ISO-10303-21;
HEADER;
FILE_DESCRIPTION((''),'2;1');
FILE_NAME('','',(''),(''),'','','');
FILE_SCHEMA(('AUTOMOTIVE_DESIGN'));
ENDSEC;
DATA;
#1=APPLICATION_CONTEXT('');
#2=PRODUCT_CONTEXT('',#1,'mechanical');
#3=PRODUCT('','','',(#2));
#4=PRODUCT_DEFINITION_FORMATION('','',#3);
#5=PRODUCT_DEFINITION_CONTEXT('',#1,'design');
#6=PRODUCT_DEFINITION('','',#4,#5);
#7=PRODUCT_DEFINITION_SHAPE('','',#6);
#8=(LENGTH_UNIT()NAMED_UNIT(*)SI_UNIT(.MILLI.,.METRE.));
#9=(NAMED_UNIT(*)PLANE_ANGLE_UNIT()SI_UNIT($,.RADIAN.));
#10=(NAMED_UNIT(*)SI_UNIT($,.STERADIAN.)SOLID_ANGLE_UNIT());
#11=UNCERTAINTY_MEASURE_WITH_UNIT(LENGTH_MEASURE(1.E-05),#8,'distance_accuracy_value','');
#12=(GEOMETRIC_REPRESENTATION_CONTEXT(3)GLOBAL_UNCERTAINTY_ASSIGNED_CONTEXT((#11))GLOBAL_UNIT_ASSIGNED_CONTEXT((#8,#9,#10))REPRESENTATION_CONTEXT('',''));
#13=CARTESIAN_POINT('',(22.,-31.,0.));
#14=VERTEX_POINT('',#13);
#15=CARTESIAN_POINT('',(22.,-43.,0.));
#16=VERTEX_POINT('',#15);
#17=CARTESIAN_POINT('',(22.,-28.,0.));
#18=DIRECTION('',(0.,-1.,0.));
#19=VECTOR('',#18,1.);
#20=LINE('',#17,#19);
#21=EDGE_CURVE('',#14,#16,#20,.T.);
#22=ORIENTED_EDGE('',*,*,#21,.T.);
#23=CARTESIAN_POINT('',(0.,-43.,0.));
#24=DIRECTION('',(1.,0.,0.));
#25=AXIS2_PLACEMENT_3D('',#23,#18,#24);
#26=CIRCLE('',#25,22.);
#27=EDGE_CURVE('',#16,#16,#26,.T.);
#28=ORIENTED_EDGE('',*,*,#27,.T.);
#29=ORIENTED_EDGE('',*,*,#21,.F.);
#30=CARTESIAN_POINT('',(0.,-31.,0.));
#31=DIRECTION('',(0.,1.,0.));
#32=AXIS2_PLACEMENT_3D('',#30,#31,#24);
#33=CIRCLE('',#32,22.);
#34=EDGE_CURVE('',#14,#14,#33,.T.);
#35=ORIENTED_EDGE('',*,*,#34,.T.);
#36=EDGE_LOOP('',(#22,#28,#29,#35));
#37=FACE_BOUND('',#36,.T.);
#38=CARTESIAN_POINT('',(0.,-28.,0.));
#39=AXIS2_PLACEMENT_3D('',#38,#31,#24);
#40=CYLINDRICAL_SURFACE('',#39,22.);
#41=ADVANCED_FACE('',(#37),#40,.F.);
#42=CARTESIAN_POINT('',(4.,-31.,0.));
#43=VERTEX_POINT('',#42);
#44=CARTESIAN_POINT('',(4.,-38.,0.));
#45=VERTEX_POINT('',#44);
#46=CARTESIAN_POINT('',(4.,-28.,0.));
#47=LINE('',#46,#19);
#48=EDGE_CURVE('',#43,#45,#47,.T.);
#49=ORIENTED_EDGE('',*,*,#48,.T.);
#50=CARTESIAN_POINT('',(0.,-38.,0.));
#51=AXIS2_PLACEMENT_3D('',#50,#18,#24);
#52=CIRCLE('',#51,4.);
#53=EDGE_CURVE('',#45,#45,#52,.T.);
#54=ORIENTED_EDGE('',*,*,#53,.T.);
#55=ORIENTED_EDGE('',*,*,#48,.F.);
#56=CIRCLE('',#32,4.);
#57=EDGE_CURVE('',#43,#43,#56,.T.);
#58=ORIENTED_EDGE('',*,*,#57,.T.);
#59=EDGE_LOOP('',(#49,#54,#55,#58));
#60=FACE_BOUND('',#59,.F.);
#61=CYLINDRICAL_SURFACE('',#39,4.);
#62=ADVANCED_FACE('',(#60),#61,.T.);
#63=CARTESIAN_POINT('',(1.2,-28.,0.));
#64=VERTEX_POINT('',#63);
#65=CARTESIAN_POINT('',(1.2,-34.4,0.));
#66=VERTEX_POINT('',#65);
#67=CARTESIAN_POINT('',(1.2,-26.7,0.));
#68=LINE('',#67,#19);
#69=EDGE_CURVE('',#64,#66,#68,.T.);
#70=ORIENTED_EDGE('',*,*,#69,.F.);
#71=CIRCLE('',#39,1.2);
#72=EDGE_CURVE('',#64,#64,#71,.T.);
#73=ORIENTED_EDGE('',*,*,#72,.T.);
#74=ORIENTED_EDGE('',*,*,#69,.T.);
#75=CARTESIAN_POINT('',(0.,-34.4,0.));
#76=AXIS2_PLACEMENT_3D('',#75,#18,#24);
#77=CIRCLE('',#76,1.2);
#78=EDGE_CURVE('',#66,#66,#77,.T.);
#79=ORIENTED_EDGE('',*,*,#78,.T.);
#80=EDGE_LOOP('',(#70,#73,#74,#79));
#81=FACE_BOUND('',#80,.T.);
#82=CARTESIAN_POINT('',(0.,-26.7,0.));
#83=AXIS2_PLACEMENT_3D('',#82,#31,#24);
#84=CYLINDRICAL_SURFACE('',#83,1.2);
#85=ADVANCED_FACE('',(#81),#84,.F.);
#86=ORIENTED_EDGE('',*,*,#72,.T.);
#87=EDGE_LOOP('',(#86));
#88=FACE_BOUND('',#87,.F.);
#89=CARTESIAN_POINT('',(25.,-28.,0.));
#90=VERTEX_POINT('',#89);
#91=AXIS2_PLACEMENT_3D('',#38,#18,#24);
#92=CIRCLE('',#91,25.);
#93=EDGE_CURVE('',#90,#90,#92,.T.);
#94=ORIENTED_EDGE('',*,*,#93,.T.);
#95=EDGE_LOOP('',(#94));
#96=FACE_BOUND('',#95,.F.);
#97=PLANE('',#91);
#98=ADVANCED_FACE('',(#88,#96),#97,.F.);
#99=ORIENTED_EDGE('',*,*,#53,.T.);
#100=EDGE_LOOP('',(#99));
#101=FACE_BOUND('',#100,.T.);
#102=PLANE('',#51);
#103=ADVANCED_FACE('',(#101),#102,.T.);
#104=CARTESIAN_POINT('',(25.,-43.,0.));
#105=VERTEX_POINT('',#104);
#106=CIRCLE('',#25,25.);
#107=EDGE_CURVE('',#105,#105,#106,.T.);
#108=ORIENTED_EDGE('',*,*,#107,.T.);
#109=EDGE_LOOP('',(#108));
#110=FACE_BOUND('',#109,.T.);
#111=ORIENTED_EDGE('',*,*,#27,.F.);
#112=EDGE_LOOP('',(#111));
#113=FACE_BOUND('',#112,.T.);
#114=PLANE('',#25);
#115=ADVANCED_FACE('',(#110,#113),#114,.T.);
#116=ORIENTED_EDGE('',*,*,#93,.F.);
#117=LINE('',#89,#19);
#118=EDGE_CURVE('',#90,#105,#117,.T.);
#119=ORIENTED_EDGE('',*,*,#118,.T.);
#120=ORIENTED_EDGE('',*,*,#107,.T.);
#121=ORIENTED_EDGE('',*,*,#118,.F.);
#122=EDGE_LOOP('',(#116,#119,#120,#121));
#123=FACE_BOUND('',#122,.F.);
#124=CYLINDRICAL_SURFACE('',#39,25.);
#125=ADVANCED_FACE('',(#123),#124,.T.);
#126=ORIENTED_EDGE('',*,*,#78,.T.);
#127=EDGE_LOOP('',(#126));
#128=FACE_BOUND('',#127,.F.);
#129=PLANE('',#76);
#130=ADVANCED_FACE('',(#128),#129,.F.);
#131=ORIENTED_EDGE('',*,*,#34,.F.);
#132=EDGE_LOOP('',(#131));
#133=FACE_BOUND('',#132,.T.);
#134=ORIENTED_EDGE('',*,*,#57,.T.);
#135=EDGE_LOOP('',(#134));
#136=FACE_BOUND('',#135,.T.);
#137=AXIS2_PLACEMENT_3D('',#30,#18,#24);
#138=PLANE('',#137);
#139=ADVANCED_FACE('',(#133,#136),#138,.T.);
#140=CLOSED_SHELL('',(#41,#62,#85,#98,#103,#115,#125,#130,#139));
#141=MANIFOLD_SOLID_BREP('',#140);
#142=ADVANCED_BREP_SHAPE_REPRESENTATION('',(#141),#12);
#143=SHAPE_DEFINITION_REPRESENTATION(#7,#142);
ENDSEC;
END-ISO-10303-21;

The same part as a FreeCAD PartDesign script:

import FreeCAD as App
import Part
import Sketcher

V = App.Vector
Q = App.Units.Quantity


def faces_at(feature, points):
    """Names of the faces that lie closest to the given points."""
    faces = feature.Shape.Faces
    near = lambda p: min(range(len(faces)), key=lambda i: faces[i].distToShape(Part.Vertex(*p))[0])
    return sorted({f"Face{near(p) + 1}" for p in points})

doc = App.newDocument("Part")
body = doc.addObject("PartDesign::Body", "Body")

# Sketch on XY plane
sketch1 = body.newObject("Sketcher::SketchObject", "Sketch")
sketch1.AttachmentSupport = (doc.getObject("XY_Plane"), [""])
sketch1.MapMode = "FlatFace"
sketch1.addGeometry(Part.Circle(V(0, 0, 0), V(0, 0, 1), 1.2), False)
sketch1.addConstraint([
    Sketcher.Constraint("Coincident", 0, 3, -1, 1),
    Sketcher.Constraint("Diameter", 0, Q("2.4 mm")),
])
pad1 = body.newObject("PartDesign::Pad", "Pad")
pad1.Profile = sketch1
pad1.Length = 7.7
body2 = doc.addObject("PartDesign::Body", "Body001")
doc.recompute()

body.Placement = App.Placement(V(0, 0, 0), App.Rotation(V(1, 0, 0), 90))
boolean = body2.newObject("PartDesign::Boolean", "Boolean")
boolean.Type = "Fuse"
boolean.addObjects([body])
body3 = doc.addObject("PartDesign::Body", "Body002")
doc.recompute()

body2.Placement = App.Placement(V(0, -26.7, 0), App.Rotation(V(0, 0, 1), 0))
boolean2 = body3.newObject("PartDesign::Boolean", "Boolean001")
boolean2.Type = "Fuse"
boolean2.addObjects([body2])
body4 = doc.addObject("PartDesign::Body", "Body003")

# Sketch on XY plane
sketch2 = body4.newObject("Sketcher::SketchObject", "Sketch001")
sketch2.AttachmentSupport = (doc.getObject("XY_Plane003"), [""])
sketch2.MapMode = "FlatFace"
sketch2.addGeometry(Part.Circle(V(0, 0, 0), V(0, 0, 1), 4), False)
sketch2.addConstraint([
    Sketcher.Constraint("Coincident", 0, 3, -1, 1),
    Sketcher.Constraint("Diameter", 0, Q("8 mm")),
])
pad2 = body4.newObject("PartDesign::Pad", "Pad001")
pad2.Profile = sketch2
pad2.Length = 10
body5 = doc.addObject("PartDesign::Body", "Body004")
doc.recompute()

body4.Placement = App.Placement(V(0, 0, 0), App.Rotation(V(1, 0, 0), 90))
boolean3 = body5.newObject("PartDesign::Boolean", "Boolean002")
boolean3.Type = "Fuse"
boolean3.addObjects([body4])
body6 = doc.addObject("PartDesign::Body", "Body005")
doc.recompute()

body5.Placement = App.Placement(V(0, -28, 0), App.Rotation(V(0, 0, 1), 0))
boolean4 = body6.newObject("PartDesign::Boolean", "Boolean003")
boolean4.Type = "Fuse"
boolean4.addObjects([body5])
body7 = doc.addObject("PartDesign::Body", "Body006")

# Sketch on XY plane
sketch3 = body7.newObject("Sketcher::SketchObject", "Sketch002")
sketch3.AttachmentSupport = (doc.getObject("XY_Plane006"), [""])
sketch3.MapMode = "FlatFace"
sketch3.addGeometry(Part.Circle(V(0, 0, 0), V(0, 0, 1), 25), False)
sketch3.addConstraint([
    Sketcher.Constraint("Coincident", 0, 3, -1, 1),
    Sketcher.Constraint("Diameter", 0, Q("50 mm")),
])
pad3 = body7.newObject("PartDesign::Pad", "Pad002")
pad3.Profile = sketch3
pad3.Length = 15
body8 = doc.addObject("PartDesign::Body", "Body007")
doc.recompute()

body7.Placement = App.Placement(V(0, 0, 0), App.Rotation(V(1, 0, 0), 90))
boolean5 = body8.newObject("PartDesign::Boolean", "Boolean004")
boolean5.Type = "Fuse"
boolean5.addObjects([body7])
body9 = doc.addObject("PartDesign::Body", "Body008")
doc.recompute()

body8.Placement = App.Placement(V(0, -28, 0), App.Rotation(V(0, 0, 1), 0))
boolean6 = body9.newObject("PartDesign::Boolean", "Boolean005")
boolean6.Type = "Fuse"
boolean6.addObjects([body8])
doc.recompute()

thickness = body9.newObject("PartDesign::Thickness", "Thickness")
thickness.Base = (boolean6, faces_at(boolean6, [(0, -43, 0)]))
thickness.Value = 3
thickness.Reversed = True
thickness.Join = "Arc"
doc.recompute()

boolean7 = body9.newObject("PartDesign::Boolean", "Boolean006")
boolean7.Type = "Fuse"
boolean7.addObjects([body6])
doc.recompute()

boolean8 = body9.newObject("PartDesign::Boolean", "Boolean007")
boolean8.Type = "Cut"
boolean8.addObjects([body3])

doc.recompute()
